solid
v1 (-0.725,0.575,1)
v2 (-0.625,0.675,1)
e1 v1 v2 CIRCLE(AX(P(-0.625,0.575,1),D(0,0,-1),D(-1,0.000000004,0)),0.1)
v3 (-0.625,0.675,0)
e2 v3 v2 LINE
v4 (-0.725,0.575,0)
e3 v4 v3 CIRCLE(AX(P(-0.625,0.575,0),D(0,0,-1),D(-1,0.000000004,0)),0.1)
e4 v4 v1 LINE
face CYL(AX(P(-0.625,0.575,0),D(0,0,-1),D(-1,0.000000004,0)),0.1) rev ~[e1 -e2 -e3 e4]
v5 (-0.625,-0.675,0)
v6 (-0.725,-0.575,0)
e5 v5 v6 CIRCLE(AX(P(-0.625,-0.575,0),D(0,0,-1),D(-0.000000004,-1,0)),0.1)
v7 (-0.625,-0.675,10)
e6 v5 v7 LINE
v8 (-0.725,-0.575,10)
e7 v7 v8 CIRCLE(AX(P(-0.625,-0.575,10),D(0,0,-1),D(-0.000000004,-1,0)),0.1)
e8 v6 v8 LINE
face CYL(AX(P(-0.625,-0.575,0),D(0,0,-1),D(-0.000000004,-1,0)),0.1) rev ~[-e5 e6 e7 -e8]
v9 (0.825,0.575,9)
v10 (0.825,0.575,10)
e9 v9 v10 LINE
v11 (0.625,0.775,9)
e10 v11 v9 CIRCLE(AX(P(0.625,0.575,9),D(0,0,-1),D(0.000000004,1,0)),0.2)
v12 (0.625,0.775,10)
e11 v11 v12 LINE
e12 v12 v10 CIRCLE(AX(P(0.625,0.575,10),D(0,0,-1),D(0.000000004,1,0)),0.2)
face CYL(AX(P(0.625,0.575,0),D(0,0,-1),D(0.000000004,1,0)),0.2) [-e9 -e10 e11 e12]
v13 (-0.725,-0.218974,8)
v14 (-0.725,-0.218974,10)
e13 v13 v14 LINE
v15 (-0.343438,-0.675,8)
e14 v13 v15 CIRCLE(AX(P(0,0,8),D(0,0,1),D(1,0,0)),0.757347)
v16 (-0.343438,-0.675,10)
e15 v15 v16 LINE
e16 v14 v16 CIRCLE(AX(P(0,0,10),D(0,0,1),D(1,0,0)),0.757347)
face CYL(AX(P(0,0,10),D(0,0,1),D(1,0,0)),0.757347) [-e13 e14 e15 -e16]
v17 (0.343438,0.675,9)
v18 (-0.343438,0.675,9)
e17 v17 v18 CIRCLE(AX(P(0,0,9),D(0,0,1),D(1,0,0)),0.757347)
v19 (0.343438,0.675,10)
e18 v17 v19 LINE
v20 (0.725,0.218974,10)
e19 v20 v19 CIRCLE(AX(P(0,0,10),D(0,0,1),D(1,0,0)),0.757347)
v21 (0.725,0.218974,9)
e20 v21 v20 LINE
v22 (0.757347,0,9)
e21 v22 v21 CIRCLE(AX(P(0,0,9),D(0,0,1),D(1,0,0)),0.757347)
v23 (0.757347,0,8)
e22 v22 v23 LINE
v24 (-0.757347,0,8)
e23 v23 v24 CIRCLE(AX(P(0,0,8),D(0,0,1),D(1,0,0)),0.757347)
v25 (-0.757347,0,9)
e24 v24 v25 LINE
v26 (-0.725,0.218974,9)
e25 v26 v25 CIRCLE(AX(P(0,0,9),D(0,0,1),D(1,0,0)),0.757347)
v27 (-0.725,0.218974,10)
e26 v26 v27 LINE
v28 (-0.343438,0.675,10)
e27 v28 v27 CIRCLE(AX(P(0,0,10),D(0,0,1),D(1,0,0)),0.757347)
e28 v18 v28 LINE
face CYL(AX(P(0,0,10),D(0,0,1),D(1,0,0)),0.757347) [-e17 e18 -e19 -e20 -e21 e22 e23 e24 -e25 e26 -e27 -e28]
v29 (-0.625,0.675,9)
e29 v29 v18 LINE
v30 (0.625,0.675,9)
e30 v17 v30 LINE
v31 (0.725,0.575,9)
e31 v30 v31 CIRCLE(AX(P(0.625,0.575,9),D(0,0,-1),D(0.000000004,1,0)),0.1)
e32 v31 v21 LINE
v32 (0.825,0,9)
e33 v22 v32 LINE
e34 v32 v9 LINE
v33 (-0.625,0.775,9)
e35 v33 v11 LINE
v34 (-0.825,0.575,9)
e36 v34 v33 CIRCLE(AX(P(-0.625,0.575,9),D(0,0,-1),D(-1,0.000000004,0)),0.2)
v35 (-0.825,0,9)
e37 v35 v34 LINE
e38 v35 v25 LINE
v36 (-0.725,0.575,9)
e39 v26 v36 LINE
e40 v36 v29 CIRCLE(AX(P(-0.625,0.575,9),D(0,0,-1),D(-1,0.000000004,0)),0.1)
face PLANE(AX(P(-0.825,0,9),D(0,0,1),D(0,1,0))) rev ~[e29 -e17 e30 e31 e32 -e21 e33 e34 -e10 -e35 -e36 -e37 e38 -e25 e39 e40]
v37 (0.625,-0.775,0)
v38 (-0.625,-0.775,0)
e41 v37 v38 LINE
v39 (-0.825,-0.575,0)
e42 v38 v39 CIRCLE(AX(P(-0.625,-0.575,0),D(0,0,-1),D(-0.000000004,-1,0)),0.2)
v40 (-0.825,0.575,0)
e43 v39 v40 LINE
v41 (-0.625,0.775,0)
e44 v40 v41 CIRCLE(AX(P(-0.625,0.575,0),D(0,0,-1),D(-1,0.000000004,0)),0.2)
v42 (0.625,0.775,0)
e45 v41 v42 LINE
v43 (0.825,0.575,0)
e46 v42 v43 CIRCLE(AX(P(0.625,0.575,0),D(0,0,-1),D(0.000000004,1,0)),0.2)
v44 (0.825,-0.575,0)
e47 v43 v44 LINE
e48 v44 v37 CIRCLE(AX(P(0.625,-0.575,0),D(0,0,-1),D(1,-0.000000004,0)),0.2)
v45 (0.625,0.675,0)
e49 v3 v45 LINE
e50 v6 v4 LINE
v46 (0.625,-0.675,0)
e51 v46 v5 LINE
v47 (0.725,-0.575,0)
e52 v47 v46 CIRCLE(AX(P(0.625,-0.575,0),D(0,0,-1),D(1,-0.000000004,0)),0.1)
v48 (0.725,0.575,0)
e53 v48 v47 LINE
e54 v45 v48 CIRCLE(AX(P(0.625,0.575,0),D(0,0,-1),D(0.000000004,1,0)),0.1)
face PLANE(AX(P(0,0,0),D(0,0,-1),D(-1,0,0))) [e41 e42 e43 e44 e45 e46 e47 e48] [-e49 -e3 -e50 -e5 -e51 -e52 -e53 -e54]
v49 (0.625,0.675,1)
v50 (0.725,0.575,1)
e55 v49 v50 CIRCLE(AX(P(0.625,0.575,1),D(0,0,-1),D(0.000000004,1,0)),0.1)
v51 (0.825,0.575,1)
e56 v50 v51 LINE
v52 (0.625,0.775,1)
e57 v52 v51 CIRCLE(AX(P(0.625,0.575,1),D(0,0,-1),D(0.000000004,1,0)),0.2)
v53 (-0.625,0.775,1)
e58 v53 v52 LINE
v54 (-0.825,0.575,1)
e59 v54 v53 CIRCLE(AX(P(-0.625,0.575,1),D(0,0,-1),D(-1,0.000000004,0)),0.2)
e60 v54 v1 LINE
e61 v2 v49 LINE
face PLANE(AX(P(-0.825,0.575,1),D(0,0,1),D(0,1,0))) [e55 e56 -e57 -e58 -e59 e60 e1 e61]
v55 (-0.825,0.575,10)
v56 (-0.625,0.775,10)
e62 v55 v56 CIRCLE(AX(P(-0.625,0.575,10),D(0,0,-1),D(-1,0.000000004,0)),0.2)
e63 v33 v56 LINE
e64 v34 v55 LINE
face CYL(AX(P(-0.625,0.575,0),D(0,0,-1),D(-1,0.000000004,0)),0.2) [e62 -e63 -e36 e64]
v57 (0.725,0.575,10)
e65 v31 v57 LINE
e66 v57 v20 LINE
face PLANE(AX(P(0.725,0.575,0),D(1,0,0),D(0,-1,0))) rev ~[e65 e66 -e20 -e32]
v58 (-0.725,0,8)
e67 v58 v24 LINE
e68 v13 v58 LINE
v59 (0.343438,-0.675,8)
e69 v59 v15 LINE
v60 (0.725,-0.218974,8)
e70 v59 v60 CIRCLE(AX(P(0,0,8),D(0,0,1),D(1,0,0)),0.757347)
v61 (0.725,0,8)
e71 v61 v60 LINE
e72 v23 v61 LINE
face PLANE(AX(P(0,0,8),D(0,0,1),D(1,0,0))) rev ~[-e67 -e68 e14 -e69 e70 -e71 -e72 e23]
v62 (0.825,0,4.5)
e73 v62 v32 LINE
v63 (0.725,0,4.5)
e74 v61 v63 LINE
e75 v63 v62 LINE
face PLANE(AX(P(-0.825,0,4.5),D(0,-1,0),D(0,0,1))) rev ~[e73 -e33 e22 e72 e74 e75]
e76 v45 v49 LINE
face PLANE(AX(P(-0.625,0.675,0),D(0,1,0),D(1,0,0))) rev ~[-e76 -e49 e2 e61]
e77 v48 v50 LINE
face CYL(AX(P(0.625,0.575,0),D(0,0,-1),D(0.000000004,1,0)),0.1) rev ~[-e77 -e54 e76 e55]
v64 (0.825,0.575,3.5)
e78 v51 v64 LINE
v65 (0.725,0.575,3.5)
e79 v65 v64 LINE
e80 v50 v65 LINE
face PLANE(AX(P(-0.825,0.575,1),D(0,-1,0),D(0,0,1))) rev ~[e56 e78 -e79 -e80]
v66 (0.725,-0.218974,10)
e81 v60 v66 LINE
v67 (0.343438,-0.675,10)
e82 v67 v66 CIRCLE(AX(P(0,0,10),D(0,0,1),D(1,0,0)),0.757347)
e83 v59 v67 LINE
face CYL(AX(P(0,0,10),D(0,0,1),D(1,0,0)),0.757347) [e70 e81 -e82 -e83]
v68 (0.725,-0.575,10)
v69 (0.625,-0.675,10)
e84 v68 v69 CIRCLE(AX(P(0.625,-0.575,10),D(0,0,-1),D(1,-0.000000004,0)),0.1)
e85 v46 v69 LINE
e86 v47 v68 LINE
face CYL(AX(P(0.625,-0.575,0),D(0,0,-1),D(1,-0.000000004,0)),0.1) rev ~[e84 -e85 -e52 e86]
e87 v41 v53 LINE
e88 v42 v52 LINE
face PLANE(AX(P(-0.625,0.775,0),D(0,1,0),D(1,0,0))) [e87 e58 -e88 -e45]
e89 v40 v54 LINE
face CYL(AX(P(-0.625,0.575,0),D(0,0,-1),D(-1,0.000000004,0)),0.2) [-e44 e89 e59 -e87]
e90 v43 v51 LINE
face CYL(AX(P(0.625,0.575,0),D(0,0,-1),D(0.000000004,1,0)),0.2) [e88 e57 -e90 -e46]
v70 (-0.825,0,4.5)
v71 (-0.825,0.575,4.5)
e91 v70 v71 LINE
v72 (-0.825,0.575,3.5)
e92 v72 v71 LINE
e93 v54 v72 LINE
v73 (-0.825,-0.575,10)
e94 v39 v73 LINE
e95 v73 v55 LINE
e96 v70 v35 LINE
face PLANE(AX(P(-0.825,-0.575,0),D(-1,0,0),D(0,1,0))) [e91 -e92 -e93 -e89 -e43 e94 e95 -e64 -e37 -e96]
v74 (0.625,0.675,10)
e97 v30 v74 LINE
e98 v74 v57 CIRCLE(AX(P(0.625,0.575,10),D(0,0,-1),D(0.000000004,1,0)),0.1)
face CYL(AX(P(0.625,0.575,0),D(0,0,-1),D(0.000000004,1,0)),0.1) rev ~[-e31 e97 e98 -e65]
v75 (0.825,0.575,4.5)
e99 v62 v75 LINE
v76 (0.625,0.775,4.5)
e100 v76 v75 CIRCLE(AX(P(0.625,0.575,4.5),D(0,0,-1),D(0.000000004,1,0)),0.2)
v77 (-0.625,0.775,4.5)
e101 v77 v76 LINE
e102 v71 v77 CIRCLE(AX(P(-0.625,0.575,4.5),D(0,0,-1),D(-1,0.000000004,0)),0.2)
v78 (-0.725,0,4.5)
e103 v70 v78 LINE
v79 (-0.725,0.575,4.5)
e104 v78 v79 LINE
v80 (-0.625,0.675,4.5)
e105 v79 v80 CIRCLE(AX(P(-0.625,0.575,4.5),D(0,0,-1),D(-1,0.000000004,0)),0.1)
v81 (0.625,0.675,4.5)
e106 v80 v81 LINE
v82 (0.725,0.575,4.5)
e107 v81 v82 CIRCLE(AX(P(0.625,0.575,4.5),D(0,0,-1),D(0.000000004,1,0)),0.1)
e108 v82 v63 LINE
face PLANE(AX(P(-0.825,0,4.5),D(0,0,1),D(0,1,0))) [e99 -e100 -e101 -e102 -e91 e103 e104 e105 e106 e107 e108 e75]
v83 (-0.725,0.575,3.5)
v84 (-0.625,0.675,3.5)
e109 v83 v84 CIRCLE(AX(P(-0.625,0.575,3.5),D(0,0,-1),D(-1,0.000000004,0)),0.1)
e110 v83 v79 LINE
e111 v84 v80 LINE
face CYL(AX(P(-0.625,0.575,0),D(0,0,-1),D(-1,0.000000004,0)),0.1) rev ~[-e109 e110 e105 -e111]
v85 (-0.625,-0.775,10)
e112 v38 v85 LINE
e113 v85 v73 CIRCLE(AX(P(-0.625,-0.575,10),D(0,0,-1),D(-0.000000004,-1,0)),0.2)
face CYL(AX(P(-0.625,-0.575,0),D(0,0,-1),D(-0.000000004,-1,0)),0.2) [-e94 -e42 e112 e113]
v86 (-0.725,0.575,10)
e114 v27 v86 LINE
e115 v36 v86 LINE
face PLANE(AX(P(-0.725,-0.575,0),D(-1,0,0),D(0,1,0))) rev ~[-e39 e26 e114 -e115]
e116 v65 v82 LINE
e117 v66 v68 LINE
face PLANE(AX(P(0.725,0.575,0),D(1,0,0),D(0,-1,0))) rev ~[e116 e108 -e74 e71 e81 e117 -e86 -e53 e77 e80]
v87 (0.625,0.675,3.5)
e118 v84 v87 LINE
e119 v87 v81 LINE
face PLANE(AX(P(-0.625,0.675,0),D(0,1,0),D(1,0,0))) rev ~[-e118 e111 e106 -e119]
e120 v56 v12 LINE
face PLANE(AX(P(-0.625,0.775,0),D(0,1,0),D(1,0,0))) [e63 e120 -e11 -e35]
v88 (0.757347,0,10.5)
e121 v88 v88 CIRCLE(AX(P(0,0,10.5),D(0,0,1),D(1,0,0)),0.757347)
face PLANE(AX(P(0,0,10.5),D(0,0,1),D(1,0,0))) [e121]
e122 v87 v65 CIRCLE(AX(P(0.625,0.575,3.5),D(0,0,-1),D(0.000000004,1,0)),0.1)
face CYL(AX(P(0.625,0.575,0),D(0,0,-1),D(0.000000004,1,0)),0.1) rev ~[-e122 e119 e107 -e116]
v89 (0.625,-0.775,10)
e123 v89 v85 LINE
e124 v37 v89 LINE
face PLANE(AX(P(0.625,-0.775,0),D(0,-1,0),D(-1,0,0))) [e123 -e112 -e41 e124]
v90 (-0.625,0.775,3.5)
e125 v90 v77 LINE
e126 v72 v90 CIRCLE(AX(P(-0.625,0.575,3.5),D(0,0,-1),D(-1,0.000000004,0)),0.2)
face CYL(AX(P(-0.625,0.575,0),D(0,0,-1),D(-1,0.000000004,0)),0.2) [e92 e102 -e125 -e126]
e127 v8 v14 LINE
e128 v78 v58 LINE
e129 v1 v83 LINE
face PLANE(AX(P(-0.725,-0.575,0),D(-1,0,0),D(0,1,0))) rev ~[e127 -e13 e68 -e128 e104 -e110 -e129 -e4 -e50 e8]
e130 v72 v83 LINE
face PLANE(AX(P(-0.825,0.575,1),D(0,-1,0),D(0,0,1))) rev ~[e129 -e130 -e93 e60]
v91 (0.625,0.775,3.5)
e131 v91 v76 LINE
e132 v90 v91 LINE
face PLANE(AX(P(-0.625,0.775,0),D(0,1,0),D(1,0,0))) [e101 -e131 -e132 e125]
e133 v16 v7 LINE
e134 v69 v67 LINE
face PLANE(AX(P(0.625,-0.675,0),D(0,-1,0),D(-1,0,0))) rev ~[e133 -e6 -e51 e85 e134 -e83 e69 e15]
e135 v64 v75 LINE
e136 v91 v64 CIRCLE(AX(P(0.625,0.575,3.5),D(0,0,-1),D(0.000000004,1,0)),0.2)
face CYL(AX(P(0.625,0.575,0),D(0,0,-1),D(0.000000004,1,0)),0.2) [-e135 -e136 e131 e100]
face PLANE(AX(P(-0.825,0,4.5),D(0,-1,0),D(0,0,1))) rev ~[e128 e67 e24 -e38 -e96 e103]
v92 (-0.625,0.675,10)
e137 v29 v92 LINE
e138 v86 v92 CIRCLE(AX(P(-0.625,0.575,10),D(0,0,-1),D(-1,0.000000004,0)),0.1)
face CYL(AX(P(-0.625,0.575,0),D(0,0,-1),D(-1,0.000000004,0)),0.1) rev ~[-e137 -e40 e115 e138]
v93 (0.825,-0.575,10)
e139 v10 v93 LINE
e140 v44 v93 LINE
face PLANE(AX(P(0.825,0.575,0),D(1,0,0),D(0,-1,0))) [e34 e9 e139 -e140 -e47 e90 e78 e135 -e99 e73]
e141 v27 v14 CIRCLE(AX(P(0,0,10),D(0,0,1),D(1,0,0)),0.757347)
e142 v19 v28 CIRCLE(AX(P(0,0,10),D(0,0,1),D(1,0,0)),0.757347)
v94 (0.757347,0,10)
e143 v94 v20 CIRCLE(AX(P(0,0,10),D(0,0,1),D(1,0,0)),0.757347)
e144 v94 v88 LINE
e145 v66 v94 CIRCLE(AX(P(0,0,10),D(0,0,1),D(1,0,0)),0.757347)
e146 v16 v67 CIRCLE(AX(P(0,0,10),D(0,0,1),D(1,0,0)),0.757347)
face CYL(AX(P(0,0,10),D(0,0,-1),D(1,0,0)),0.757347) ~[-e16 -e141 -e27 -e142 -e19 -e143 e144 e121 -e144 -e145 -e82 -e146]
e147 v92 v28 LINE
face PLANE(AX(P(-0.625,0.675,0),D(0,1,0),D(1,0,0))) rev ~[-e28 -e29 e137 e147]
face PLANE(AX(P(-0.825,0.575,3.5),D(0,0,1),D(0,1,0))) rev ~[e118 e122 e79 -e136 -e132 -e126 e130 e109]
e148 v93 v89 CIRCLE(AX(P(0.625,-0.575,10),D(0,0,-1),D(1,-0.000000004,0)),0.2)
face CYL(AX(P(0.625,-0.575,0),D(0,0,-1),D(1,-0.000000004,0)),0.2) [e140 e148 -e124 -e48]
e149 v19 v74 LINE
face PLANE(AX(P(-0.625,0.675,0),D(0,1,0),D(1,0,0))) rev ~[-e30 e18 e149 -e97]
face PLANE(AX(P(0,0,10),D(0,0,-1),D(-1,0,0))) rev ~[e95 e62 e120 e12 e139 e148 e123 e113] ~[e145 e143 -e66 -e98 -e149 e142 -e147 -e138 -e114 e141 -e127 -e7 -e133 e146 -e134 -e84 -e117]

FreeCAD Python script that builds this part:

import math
import FreeCAD as App
import Part
import Sketcher
from FreeCAD import Vector
Q = App.Units.Quantity


def add_polygon(sketch, points):
    """Adds a closed chain of lines whose ends are joined by coincident constraints."""
    first, n = sketch.GeometryCount, len(points)
    for a, b in zip(points, points[1:] + points[:1]):
        sketch.addGeometry(Part.LineSegment(App.Vector(*a, 0), App.Vector(*b, 0)), False)
    for i in range(n):
        sketch.addConstraint(Sketcher.Constraint("Coincident", first + i, 2, first + (i + 1) % n, 1))

doc = App.newDocument("Part")
body = doc.addObject("PartDesign::Body", "Body")

sketch1 = doc.addObject("Sketcher::SketchObject", "Sketch")
body.addObject(sketch1)
sketch1.AttachmentSupport = (doc.XY_Plane, [""])
sketch1.MapMode = "FlatFace"
sketch1.addGeometry(Part.LineSegment(Vector(-0.62, -0.78, 0), Vector(0.62, -0.78, 0)), False)
sketch1.addGeometry(Part.ArcOfCircle(Part.Circle(Vector(0.62, -0.57, 0), Vector(0, 0, 1), 0.2), math.radians(-90), math.radians(0)), False)
sketch1.addGeometry(Part.LineSegment(Vector(0.82, -0.57, 0), Vector(0.82, 0.57, 0)), False)
sketch1.addGeometry(Part.ArcOfCircle(Part.Circle(Vector(0.62, 0.57, 0), Vector(0, 0, 1), 0.2), math.radians(0), math.radians(90)), False)
sketch1.addGeometry(Part.LineSegment(Vector(0.62, 0.78, 0), Vector(-0.62, 0.78, 0)), False)
sketch1.addGeometry(Part.ArcOfCircle(Part.Circle(Vector(-0.62, 0.57, 0), Vector(0, 0, 1), 0.2), math.radians(90), math.radians(180)), False)
sketch1.addGeometry(Part.LineSegment(Vector(-0.82, 0.57, 0), Vector(-0.82, -0.57, 0)), False)
sketch1.addGeometry(Part.ArcOfCircle(Part.Circle(Vector(-0.62, -0.57, 0), Vector(0, 0, 1), 0.2), math.radians(-180), math.radians(-90)), False)
sketch1.addGeometry(Part.LineSegment(Vector(-0.72, -0.57, 0), Vector(-0.72, 0.57, 0)), False)
sketch1.addGeometry(Part.ArcOfCircle(Part.Circle(Vector(-0.62, 0.57, 0), Vector(0, 0, 1), 0.1), math.radians(90), math.radians(180)), False)
sketch1.addGeometry(Part.LineSegment(Vector(-0.62, 0.68, 0), Vector(0.62, 0.68, 0)), False)
sketch1.addGeometry(Part.ArcOfCircle(Part.Circle(Vector(0.62, 0.57, 0), Vector(0, 0, 1), 0.1), math.radians(0), math.radians(90)), False)
sketch1.addGeometry(Part.LineSegment(Vector(0.72, 0.57, 0), Vector(0.72, -0.57, 0)), False)
sketch1.addGeometry(Part.ArcOfCircle(Part.Circle(Vector(0.62, -0.57, 0), Vector(0, 0, 1), 0.1), math.radians(-90), math.radians(0)), False)
sketch1.addGeometry(Part.LineSegment(Vector(0.62, -0.68, 0), Vector(-0.62, -0.68, 0)), False)
sketch1.addGeometry(Part.ArcOfCircle(Part.Circle(Vector(-0.62, -0.57, 0), Vector(0, 0, 1), 0.1), math.radians(180), math.radians(270)), False)
sketch1.addConstraint(Sketcher.Constraint("Tangent", 0, 2, 1, 1))
sketch1.addConstraint(Sketcher.Constraint("Tangent", 1, 2, 2, 1))
sketch1.addConstraint(Sketcher.Constraint("Tangent", 2, 2, 3, 1))
sketch1.addConstraint(Sketcher.Constraint("Tangent", 3, 2, 4, 1))
sketch1.addConstraint(Sketcher.Constraint("Tangent", 4, 2, 5, 1))
sketch1.addConstraint(Sketcher.Constraint("Tangent", 5, 2, 6, 1))
sketch1.addConstraint(Sketcher.Constraint("Tangent", 6, 2, 7, 1))
sketch1.addConstraint(Sketcher.Constraint("Tangent", 7, 2, 0, 1))
sketch1.addConstraint(Sketcher.Constraint("Tangent", 8, 2, 9, 2))
sketch1.addConstraint(Sketcher.Constraint("Tangent", 9, 1, 10, 1))
sketch1.addConstraint(Sketcher.Constraint("Tangent", 10, 2, 11, 2))
sketch1.addConstraint(Sketcher.Constraint("Tangent", 11, 1, 12, 1))
sketch1.addConstraint(Sketcher.Constraint("Tangent", 12, 2, 13, 2))
sketch1.addConstraint(Sketcher.Constraint("Tangent", 13, 1, 14, 1))
sketch1.addConstraint(Sketcher.Constraint("Tangent", 14, 2, 15, 2))
sketch1.addConstraint(Sketcher.Constraint("Tangent", 15, 1, 8, 1))
sketch1.addConstraint(Sketcher.Constraint("Horizontal", 0))
sketch1.addConstraint(Sketcher.Constraint("Vertical", 2))
sketch1.addConstraint(Sketcher.Constraint("Horizontal", 4))
sketch1.addConstraint(Sketcher.Constraint("Vertical", 6))
sketch1.addConstraint(Sketcher.Constraint("Vertical", 8))
sketch1.addConstraint(Sketcher.Constraint("Horizontal", 10))
sketch1.addConstraint(Sketcher.Constraint("Vertical", 12))
sketch1.addConstraint(Sketcher.Constraint("Horizontal", 14))
sketch1.addConstraint(Sketcher.Constraint("Coincident", 9, 3, 5, 3))
sketch1.addConstraint(Sketcher.Constraint("Coincident", 11, 3, 3, 3))
sketch1.addConstraint(Sketcher.Constraint("Coincident", 13, 3, 1, 3))
sketch1.addConstraint(Sketcher.Constraint("Equal", 1, 3))
sketch1.addConstraint(Sketcher.Constraint("Equal", 3, 5))
sketch1.addConstraint(Sketcher.Constraint("Equal", 5, 7))
sketch1.addConstraint(Sketcher.Constraint("Equal", 13, 15))
sketch1.addConstraint(Sketcher.Constraint("Symmetric", 1, 3, 5, 3, -1, 1))
sketch1.addConstraint(Sketcher.Constraint("Radius", 1, Q("0.2 mm")))
sketch1.addConstraint(Sketcher.Constraint("Radius", 9, Q("0.1 mm")))
sketch1.addConstraint(Sketcher.Constraint("DistanceX", 0, 1, 0, 2, Q("1.25 mm")))
sketch1.addConstraint(Sketcher.Constraint("DistanceY", 2, 1, 2, 2, Q("1.15 mm")))
pad1 = doc.addObject("PartDesign::Pad", "Pad")
body.addObject(pad1)
pad1.Profile = sketch1
pad1.Length = 10

sketch2 = doc.addObject("Sketcher::SketchObject", "Sketch001")
body.addObject(sketch2)
sketch2.AttachmentSupport = (doc.YZ_Plane, [""])
sketch2.MapMode = "FlatFace"
sketch2.AttachmentOffset = App.Placement(Vector(0, 0, -0.825), App.Rotation())
add_polygon(sketch2, [(0.78, 1), (0.57, 1), (0.57, 3.5), (0.78, 3.5)])
add_polygon(sketch2, [(0.78, 4.5), (0, 4.5), (0, 9), (0.78, 9)])
sketch2.addConstraint(Sketcher.Constraint("Horizontal", 0))
sketch2.addConstraint(Sketcher.Constraint("Vertical", 1))
sketch2.addConstraint(Sketcher.Constraint("Horizontal", 2))
sketch2.addConstraint(Sketcher.Constraint("Vertical", 3))
sketch2.addConstraint(Sketcher.Constraint("Horizontal", 4))
sketch2.addConstraint(Sketcher.Constraint("Vertical", 5))
sketch2.addConstraint(Sketcher.Constraint("Horizontal", 6))
sketch2.addConstraint(Sketcher.Constraint("Vertical", 7))
sketch2.addConstraint(Sketcher.Constraint("PointOnObject", 4, 2, -2))
sketch2.addConstraint(Sketcher.Constraint("Vertical", 3, 2, 6, 2))
sketch2.addConstraint(Sketcher.Constraint("DistanceX", 0, 2, 0, 1, Q("0.2 mm")))
sketch2.addConstraint(Sketcher.Constraint("DistanceY", 1, 1, 1, 2, Q("2.5 mm")))
sketch2.addConstraint(Sketcher.Constraint("DistanceY", 5, 1, 5, 2, Q("4.5 mm")))
sketch2.addConstraint(Sketcher.Constraint("DistanceY", -1, 1, 0, 2, Q("1 mm")))
sketch2.addConstraint(Sketcher.Constraint("DistanceY", -1, 1, 5, 2, Q("9 mm")))
sketch2.addConstraint(Sketcher.Constraint("DistanceX", 4, 2, 4, 1, Q("0.775 mm")))
pocket1 = doc.addObject("PartDesign::Pocket", "Pocket")
body.addObject(pocket1)
pocket1.Profile = sketch2
pocket1.Length = 1.65
pocket1.Reversed = True

sketch3 = doc.addObject("Sketcher::SketchObject", "Sketch002")
body.addObject(sketch3)
sketch3.AttachmentSupport = (doc.XY_Plane, [""])
sketch3.MapMode = "FlatFace"
sketch3.AttachmentOffset = App.Placement(Vector(0, 0, 10), App.Rotation())
sketch3.addGeometry(Part.Circle(Vector(0, 0, 0), Vector(0, 0, 1), 0.8), False)
sketch3.addConstraint(Sketcher.Constraint("Coincident", 0, 3, -1, 1))
sketch3.addConstraint(Sketcher.Constraint("Diameter", 0, Q("1.514694 mm")))
pad2 = doc.addObject("PartDesign::Pad", "Pad001")
body.addObject(pad2)
pad2.Profile = sketch3
pad2.Type = "TwoLengths"
pad2.Length = 0.5
pad2.Length2 = 2

doc.recompute()
